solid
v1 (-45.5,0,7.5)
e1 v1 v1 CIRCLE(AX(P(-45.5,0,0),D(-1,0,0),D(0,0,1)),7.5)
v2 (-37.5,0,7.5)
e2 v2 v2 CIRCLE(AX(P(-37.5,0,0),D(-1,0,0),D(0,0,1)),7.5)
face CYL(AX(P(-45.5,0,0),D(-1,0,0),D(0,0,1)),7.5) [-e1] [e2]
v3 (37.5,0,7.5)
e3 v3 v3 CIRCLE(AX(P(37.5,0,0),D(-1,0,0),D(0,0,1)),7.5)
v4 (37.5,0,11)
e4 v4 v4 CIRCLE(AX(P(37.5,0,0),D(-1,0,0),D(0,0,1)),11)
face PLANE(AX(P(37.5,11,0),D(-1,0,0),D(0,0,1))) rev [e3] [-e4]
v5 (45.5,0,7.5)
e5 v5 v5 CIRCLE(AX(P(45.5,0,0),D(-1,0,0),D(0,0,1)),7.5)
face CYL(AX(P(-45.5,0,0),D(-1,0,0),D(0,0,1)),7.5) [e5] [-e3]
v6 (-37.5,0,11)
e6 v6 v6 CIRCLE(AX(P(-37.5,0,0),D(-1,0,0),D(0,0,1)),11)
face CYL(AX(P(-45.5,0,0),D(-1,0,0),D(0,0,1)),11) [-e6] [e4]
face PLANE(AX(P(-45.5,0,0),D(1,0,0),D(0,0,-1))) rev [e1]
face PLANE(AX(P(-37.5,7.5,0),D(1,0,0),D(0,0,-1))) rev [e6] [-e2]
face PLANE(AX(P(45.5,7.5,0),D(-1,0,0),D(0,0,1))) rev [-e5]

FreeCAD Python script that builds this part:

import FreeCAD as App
import Part
import Sketcher

V = App.Vector

doc = App.newDocument("Part")
params = doc.addObject("Spreadsheet::Sheet", "Params")
for row, (alias, value) in enumerate([
    ("sketch1_width", "91 mm"),
    ("sketch1_width2", "8 mm"),
    ("sketch1_height", "7.5 mm"),
    ("sketch1_height2", "3.5 mm"),
    ("revolution_angle", "360 deg"),
], start=1):
    params.set(f"A{row}", alias)
    params.set(f"B{row}", "=" + value)
    params.setAlias(f"B{row}", alias)

body = doc.addObject("PartDesign::Body", "Body")

sketch1 = body.newObject("Sketcher::SketchObject", "Sketch")
sketch1.AttachmentSupport = (doc.getObject("XY_Plane"), [""])
sketch1.MapMode = "FlatFace"
sketch1.addGeometry(Part.LineSegment(V(-45.5, 7.5, 0), V(-45.5, 0, 0)), False)
sketch1.addGeometry(Part.LineSegment(V(-45.5, 0, 0), V(45.5, 0, 0)), False)
sketch1.addGeometry(Part.LineSegment(V(45.5, 0, 0), V(45.5, 7.5, 0)), False)
sketch1.addGeometry(Part.LineSegment(V(45.5, 7.5, 0), V(37.5, 7.5, 0)), False)
sketch1.addGeometry(Part.LineSegment(V(37.5, 7.5, 0), V(37.5, 11, 0)), False)
sketch1.addGeometry(Part.LineSegment(V(37.5, 11, 0), V(-37.5, 11, 0)), False)
sketch1.addGeometry(Part.LineSegment(V(-37.5, 11, 0), V(-37.5, 7.5, 0)), False)
sketch1.addGeometry(Part.LineSegment(V(-37.5, 7.5, 0), V(-45.5, 7.5, 0)), False)
sketch1.addConstraint(Sketcher.Constraint("Coincident", 0, 2, 1, 1))
sketch1.addConstraint(Sketcher.Constraint("Coincident", 1, 2, 2, 1))
sketch1.addConstraint(Sketcher.Constraint("Coincident", 2, 2, 3, 1))
sketch1.addConstraint(Sketcher.Constraint("Coincident", 3, 2, 4, 1))
sketch1.addConstraint(Sketcher.Constraint("Coincident", 4, 2, 5, 1))
sketch1.addConstraint(Sketcher.Constraint("Coincident", 5, 2, 6, 1))
sketch1.addConstraint(Sketcher.Constraint("Coincident", 6, 2, 7, 1))
sketch1.addConstraint(Sketcher.Constraint("Coincident", 7, 2, 0, 1))
sketch1.addConstraint(Sketcher.Constraint("Vertical", 0))
sketch1.addConstraint(Sketcher.Constraint("Horizontal", 1))
sketch1.addConstraint(Sketcher.Constraint("Vertical", 2))
sketch1.addConstraint(Sketcher.Constraint("Horizontal", 3))
sketch1.addConstraint(Sketcher.Constraint("Vertical", 4))
sketch1.addConstraint(Sketcher.Constraint("Horizontal", 5))
sketch1.addConstraint(Sketcher.Constraint("Vertical", 6))
sketch1.addConstraint(Sketcher.Constraint("Horizontal", 7))
sketch1.addConstraint(Sketcher.Constraint("Symmetric", 0, 2, 1, 2, -1, 1))
sketch1.addConstraint(Sketcher.Constraint("Symmetric", 3, 2, 6, 2, -2))
sketch1.addConstraint(Sketcher.Constraint("DistanceX", 1, 1, 1, 2, 91.0))
sketch1.addConstraint(Sketcher.Constraint("DistanceX", 3, 2, 3, 1, 8.0))
sketch1.addConstraint(Sketcher.Constraint("DistanceY", 0, 2, 0, 1, 7.5))
sketch1.addConstraint(Sketcher.Constraint("DistanceY", 4, 1, 4, 2, 3.5))
sketch1.setExpression("Constraints[18]", "Params.sketch1_width")
sketch1.setExpression("Constraints[19]", "Params.sketch1_width2")
sketch1.setExpression("Constraints[20]", "Params.sketch1_height")
sketch1.setExpression("Constraints[21]", "Params.sketch1_height2")
revolution = body.newObject("PartDesign::Revolution", "Revolution")
revolution.Profile = sketch1
revolution.ReferenceAxis = (sketch1, ["H_Axis"])
revolution.setExpression("Angle", "Params.revolution_angle")

doc.recompute()
